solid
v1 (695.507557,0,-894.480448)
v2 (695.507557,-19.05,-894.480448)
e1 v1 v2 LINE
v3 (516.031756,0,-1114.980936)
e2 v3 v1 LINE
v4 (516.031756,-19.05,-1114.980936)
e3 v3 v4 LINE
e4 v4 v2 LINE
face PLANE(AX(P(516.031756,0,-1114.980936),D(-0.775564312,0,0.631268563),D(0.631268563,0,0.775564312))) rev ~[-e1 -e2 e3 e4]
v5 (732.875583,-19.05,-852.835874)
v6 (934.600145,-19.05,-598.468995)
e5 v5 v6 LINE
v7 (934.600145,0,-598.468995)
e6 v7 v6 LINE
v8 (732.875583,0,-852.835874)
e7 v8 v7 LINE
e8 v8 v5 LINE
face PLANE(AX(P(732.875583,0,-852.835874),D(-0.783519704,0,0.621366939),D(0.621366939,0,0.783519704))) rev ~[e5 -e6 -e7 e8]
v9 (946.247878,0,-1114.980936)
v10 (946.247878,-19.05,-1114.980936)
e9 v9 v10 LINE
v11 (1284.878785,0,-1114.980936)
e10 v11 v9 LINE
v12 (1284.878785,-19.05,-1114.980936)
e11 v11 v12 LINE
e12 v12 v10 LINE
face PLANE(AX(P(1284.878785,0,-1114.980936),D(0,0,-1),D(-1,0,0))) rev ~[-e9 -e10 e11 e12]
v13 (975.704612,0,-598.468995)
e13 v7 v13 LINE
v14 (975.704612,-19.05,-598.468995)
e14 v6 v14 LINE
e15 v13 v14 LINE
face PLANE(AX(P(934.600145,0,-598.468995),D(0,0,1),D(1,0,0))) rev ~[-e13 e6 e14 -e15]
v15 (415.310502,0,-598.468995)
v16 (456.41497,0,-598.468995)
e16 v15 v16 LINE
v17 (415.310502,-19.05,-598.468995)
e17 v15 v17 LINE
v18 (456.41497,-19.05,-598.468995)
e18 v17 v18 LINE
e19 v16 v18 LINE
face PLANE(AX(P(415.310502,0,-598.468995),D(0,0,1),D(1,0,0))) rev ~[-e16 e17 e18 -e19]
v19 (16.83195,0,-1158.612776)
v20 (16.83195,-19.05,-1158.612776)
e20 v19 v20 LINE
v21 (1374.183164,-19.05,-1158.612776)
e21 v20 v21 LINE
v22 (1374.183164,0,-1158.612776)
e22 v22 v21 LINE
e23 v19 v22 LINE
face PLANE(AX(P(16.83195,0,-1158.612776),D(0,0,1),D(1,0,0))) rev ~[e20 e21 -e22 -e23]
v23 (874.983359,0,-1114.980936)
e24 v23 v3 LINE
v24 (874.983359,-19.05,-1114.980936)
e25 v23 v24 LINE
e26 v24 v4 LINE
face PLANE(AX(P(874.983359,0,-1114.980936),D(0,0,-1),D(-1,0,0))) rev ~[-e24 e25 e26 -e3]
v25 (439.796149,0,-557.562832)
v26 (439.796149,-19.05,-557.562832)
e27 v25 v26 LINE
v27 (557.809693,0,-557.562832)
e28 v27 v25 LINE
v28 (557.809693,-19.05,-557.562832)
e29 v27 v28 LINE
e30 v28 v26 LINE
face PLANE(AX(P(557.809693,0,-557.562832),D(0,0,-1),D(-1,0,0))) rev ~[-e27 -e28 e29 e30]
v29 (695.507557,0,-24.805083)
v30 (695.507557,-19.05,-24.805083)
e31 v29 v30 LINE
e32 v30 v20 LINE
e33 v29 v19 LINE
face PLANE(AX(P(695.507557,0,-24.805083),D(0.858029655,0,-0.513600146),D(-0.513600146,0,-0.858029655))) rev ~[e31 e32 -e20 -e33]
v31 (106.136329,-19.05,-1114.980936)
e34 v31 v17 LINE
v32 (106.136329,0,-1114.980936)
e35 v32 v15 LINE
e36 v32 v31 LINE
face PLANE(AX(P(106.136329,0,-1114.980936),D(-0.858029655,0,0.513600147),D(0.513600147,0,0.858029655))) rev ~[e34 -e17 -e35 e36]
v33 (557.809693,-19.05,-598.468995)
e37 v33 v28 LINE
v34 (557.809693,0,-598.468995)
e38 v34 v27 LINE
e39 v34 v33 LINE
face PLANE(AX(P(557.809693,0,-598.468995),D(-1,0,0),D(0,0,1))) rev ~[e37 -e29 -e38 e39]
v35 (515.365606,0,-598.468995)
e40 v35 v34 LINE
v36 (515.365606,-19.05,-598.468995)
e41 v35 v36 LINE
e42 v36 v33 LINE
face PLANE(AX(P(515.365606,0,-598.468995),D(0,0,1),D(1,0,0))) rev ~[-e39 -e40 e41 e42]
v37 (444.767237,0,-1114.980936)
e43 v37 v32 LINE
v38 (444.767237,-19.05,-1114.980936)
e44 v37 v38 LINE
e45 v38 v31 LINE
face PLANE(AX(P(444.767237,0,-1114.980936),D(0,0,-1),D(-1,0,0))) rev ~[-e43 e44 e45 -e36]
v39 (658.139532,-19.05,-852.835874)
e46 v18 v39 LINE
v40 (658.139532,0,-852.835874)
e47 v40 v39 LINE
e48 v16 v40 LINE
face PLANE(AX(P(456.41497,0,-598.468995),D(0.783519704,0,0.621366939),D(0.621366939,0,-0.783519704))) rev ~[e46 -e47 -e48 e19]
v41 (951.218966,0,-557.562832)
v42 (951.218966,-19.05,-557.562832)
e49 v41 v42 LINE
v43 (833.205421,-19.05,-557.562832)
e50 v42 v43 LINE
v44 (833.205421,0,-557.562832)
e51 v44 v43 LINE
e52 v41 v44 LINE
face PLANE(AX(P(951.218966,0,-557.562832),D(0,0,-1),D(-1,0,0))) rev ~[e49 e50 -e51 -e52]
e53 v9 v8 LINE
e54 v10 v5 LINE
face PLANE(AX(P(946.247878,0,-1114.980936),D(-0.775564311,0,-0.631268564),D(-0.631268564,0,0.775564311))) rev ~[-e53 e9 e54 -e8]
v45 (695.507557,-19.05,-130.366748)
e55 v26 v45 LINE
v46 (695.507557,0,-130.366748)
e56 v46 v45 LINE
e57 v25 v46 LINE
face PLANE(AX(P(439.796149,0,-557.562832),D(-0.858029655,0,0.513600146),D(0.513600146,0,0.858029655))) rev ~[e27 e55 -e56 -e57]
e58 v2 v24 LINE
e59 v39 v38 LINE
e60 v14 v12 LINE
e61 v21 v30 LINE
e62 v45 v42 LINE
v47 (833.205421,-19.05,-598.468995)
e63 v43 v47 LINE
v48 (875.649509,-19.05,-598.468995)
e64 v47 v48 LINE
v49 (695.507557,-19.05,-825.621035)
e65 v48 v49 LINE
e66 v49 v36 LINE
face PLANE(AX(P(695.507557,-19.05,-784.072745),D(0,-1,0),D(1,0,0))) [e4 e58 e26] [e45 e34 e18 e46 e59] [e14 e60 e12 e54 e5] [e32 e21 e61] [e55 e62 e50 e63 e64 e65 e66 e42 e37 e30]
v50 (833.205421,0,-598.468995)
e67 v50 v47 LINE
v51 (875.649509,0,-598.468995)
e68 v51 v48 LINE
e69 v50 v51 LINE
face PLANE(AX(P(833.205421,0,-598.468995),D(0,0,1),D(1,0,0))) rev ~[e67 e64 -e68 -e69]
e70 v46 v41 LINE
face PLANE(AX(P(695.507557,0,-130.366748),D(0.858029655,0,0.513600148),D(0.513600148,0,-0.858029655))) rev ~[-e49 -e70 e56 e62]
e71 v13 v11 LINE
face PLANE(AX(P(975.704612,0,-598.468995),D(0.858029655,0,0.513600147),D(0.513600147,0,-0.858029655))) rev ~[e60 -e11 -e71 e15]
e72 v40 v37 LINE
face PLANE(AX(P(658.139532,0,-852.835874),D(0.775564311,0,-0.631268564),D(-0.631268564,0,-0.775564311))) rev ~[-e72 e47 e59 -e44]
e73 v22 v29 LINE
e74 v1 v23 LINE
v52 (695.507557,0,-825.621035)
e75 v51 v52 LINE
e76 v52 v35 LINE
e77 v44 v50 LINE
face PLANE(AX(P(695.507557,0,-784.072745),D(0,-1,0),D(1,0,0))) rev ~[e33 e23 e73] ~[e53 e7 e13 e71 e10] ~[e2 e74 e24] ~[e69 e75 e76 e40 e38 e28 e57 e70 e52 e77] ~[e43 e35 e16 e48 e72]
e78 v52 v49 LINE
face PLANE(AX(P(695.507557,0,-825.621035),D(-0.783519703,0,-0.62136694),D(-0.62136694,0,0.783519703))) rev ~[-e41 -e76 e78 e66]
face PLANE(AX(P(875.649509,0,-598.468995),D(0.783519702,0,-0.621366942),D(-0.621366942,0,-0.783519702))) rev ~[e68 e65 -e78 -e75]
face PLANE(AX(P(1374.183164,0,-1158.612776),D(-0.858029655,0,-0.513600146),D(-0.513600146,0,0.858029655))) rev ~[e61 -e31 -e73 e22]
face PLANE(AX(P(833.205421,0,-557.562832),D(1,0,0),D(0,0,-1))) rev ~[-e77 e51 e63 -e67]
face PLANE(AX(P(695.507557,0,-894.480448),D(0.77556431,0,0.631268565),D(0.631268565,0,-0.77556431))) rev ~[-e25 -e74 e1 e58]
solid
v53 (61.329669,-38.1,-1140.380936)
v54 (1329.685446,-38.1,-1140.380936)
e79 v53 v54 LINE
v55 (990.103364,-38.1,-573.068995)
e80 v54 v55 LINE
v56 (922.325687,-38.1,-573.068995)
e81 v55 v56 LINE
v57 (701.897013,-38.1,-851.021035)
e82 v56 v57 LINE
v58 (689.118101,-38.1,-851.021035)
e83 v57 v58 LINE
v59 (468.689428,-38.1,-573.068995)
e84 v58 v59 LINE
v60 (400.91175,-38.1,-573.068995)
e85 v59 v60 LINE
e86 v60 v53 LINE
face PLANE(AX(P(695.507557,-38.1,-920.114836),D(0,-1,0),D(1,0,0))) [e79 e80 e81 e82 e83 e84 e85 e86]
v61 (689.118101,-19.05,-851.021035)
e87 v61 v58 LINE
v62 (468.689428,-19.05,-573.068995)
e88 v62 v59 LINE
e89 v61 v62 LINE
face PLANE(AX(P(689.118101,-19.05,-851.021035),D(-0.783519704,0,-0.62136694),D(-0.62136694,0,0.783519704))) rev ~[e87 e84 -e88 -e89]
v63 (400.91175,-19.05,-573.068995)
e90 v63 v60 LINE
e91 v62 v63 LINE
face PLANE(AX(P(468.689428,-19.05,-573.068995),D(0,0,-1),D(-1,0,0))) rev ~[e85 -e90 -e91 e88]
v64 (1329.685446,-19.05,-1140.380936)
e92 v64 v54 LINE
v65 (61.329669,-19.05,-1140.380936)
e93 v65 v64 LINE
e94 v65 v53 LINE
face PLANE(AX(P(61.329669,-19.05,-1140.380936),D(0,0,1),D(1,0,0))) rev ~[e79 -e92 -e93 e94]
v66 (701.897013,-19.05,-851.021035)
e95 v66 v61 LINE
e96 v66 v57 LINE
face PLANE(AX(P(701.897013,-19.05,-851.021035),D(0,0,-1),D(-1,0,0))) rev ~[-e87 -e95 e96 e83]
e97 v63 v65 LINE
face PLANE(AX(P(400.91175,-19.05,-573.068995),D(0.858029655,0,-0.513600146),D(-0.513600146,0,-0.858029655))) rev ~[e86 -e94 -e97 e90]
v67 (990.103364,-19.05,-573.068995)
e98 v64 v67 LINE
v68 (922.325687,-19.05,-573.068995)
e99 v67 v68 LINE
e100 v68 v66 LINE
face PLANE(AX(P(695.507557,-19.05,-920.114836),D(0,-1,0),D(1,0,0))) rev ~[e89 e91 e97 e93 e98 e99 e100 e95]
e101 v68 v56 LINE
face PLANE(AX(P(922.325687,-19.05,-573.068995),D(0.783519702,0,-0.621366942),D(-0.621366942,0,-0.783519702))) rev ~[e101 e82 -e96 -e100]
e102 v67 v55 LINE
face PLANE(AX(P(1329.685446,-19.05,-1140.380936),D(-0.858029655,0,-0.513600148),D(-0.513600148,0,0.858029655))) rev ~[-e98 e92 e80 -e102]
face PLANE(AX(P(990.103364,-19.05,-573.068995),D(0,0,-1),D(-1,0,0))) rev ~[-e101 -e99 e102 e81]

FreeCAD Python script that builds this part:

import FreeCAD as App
import Part
import Sketcher
from FreeCAD import Vector
Q = App.Units.Quantity

doc = App.newDocument("Part")
body = doc.addObject("PartDesign::Body", "Body")

# Sketch on XZ plane
sketch1 = body.newObject("Sketcher::SketchObject", "Sketch")
sketch1.AttachmentSupport = (doc.getObject("XZ_Plane"), [""])
sketch1.MapMode = "FlatFace"
sketch1.addGeometry([
    Part.LineSegment(Vector(1374, -1159, 0), Vector(696, -25, 0)),  # 0
    Part.LineSegment(Vector(696, -25, 0), Vector(17, -1159, 0)),  # 1
    Part.LineSegment(Vector(17, -1159, 0), Vector(1374, -1159, 0)),  # 2
    Part.LineSegment(Vector(415, -598, 0), Vector(456, -598, 0)),  # 3
    Part.LineSegment(Vector(456, -598, 0), Vector(658, -853, 0)),  # 4
    Part.LineSegment(Vector(658, -853, 0), Vector(445, -1115, 0)),  # 5
    Part.LineSegment(Vector(445, -1115, 0), Vector(106, -1115, 0)),  # 6
    Part.LineSegment(Vector(106, -1115, 0), Vector(415, -598, 0)),  # 7
    Part.LineSegment(Vector(875, -1115, 0), Vector(516, -1115, 0)),  # 8
    Part.LineSegment(Vector(516, -1115, 0), Vector(696, -894, 0)),  # 9
    Part.LineSegment(Vector(696, -894, 0), Vector(875, -1115, 0)),  # 10
    Part.LineSegment(Vector(1285, -1115, 0), Vector(946, -1115, 0)),  # 11
    Part.LineSegment(Vector(946, -1115, 0), Vector(733, -853, 0)),  # 12
    Part.LineSegment(Vector(733, -853, 0), Vector(935, -598, 0)),  # 13
    Part.LineSegment(Vector(935, -598, 0), Vector(976, -598, 0)),  # 14
    Part.LineSegment(Vector(976, -598, 0), Vector(1285, -1115, 0)),  # 15
    Part.LineSegment(Vector(833, -598, 0), Vector(876, -598, 0)),  # 16
    Part.LineSegment(Vector(876, -598, 0), Vector(696, -826, 0)),  # 17
    Part.LineSegment(Vector(696, -826, 0), Vector(515, -598, 0)),  # 18
    Part.LineSegment(Vector(515, -598, 0), Vector(558, -598, 0)),  # 19
    Part.LineSegment(Vector(558, -598, 0), Vector(558, -558, 0)),  # 20
    Part.LineSegment(Vector(558, -558, 0), Vector(440, -558, 0)),  # 21
    Part.LineSegment(Vector(440, -558, 0), Vector(696, -130, 0)),  # 22
    Part.LineSegment(Vector(696, -130, 0), Vector(951, -558, 0)),  # 23
    Part.LineSegment(Vector(951, -558, 0), Vector(833, -558, 0)),  # 24
    Part.LineSegment(Vector(833, -558, 0), Vector(833, -598, 0)),  # 25
], False)
sketch1.addConstraint([
    Sketcher.Constraint("Coincident", 0, 2, 1, 1),
    Sketcher.Constraint("Coincident", 1, 2, 2, 1),
    Sketcher.Constraint("Coincident", 2, 2, 0, 1),
    Sketcher.Constraint("Coincident", 3, 2, 4, 1),
    Sketcher.Constraint("Coincident", 4, 2, 5, 1),
    Sketcher.Constraint("Coincident", 5, 2, 6, 1),
    Sketcher.Constraint("Coincident", 6, 2, 7, 1),
    Sketcher.Constraint("Coincident", 7, 2, 3, 1),
    Sketcher.Constraint("Coincident", 8, 2, 9, 1),
    Sketcher.Constraint("Coincident", 9, 2, 10, 1),
    Sketcher.Constraint("Coincident", 10, 2, 8, 1),
    Sketcher.Constraint("Coincident", 11, 2, 12, 1),
    Sketcher.Constraint("Coincident", 12, 2, 13, 1),
    Sketcher.Constraint("Coincident", 13, 2, 14, 1),
    Sketcher.Constraint("Coincident", 14, 2, 15, 1),
    Sketcher.Constraint("Coincident", 15, 2, 11, 1),
    Sketcher.Constraint("Coincident", 16, 2, 17, 1),
    Sketcher.Constraint("Coincident", 17, 2, 18, 1),
    Sketcher.Constraint("Coincident", 18, 2, 19, 1),
    Sketcher.Constraint("Coincident", 19, 2, 20, 1),
    Sketcher.Constraint("Coincident", 20, 2, 21, 1),
    Sketcher.Constraint("Coincident", 21, 2, 22, 1),
    Sketcher.Constraint("Coincident", 22, 2, 23, 1),
    Sketcher.Constraint("Coincident", 23, 2, 24, 1),
    Sketcher.Constraint("Coincident", 24, 2, 25, 1),
    Sketcher.Constraint("Coincident", 25, 2, 16, 1),
    Sketcher.Constraint("Horizontal", 2),
    Sketcher.Constraint("Horizontal", 3),
    Sketcher.Constraint("Horizontal", 6),
    Sketcher.Constraint("Horizontal", 8),
    Sketcher.Constraint("Horizontal", 11),
    Sketcher.Constraint("Horizontal", 14),
    Sketcher.Constraint("Horizontal", 16),
    Sketcher.Constraint("Horizontal", 19),
    Sketcher.Constraint("Vertical", 20),
    Sketcher.Constraint("Horizontal", 21),
    Sketcher.Constraint("Horizontal", 24),
    Sketcher.Constraint("Vertical", 25),
    Sketcher.Constraint("Parallel", 1, 7),
    Sketcher.Constraint("Parallel", 5, 9),
    Sketcher.Constraint("Parallel", 10, 12),
    Sketcher.Constraint("Parallel", 0, 15),
    Sketcher.Constraint("Parallel", 13, 17),
    Sketcher.Constraint("Parallel", 4, 18),
    Sketcher.Constraint("Parallel", 7, 22),
    Sketcher.Constraint("Parallel", 15, 23),
    Sketcher.Constraint("Horizontal", 6, 2, 8, 2),
    Sketcher.Constraint("Horizontal", 10, 2, 11, 2),
    Sketcher.Constraint("Horizontal", 4, 2, 12, 2),
    Sketcher.Constraint("Horizontal", 7, 2, 13, 2),
    Sketcher.Constraint("Horizontal", 14, 2, 16, 2),
    Sketcher.Constraint("Horizontal", 16, 2, 18, 2),
    Sketcher.Constraint("Horizontal", 21, 2, 23, 2),
    Sketcher.Constraint("Vertical", 0, 2, 9, 2),
    Sketcher.Constraint("Vertical", 9, 2, 17, 2),
    Sketcher.Constraint("Vertical", 17, 2, 22, 2),
    Sketcher.Constraint("Equal", 6, 11),
    Sketcher.Constraint("Equal", 3, 14),
    Sketcher.Constraint("Equal", 16, 19),
    Sketcher.Constraint("Equal", 21, 24),
    Sketcher.Constraint("Equal", 0, 1),
    Sketcher.Constraint("DistanceX", 6, 2, 6, 1, 338.630908),
    Sketcher.Constraint("DistanceX", -1, 1, 7, 2, 415.310502),
    Sketcher.Constraint("DistanceY", 1, 2, 4, 2, 305.776902),
    Sketcher.Constraint("DistanceX", 8, 2, 9, 2, 179.475801),
    Sketcher.Constraint("Distance", 9, 284.30974),
    Sketcher.Constraint("Distance", 18, 289.912352),
    Sketcher.Constraint("DistanceX", 2, 1, 2, 2, 1357.351214),
    Sketcher.Constraint("DistanceX", 3, 1, 3, 2, 41.104468),
    Sketcher.Constraint("DistanceX", 16, 1, 16, 2, 42.444088),
    Sketcher.Constraint("DistanceX", 21, 2, 21, 1, 118.013544),
    Sketcher.Constraint("DistanceY", 20, 1, 20, 2, 40.906163),
    Sketcher.Constraint("DistanceX", -1, 1, 1, 2, 16.83195),
    Sketcher.Constraint("DistanceX", -1, 1, 4, 2, 658.139532),
    Sketcher.Constraint("DistanceX", -1, 1, 6, 2, 106.136329),
    Sketcher.Constraint("DistanceY", 9, 2, -1, 1, 894.480448),
    Sketcher.Constraint("DistanceX", -1, 1, 11, 2, 946.247878),
    Sketcher.Constraint("DistanceX", -1, 1, 16, 2, 875.649509),
])
pad1 = body.newObject("PartDesign::Pad", "Pad")
pad1.Profile = sketch1
pad1.Length = Q("0.75 in")
body2 = doc.addObject("PartDesign::Body", "Body001")

# Sketch on XZ plane
sketch2 = body2.newObject("Sketcher::SketchObject", "Sketch001")
sketch2.AttachmentSupport = (doc.getObject("XZ_Plane001"), [""])
sketch2.MapMode = "FlatFace"
sketch2.AttachmentOffset = App.Placement(Vector(0, 0, 0.75 * 25.4), App.Rotation())
sketch2.addGeometry([
    Part.LineSegment(Vector(689, -851, 0), Vector(469, -573, 0)),  # 0
    Part.LineSegment(Vector(469, -573, 0), Vector(401, -573, 0)),  # 1
    Part.LineSegment(Vector(401, -573, 0), Vector(61, -1140, 0)),  # 2
    Part.LineSegment(Vector(61, -1140, 0), Vector(1330, -1140, 0)),  # 3
    Part.LineSegment(Vector(1330, -1140, 0), Vector(990, -573, 0)),  # 4
    Part.LineSegment(Vector(990, -573, 0), Vector(922, -573, 0)),  # 5
    Part.LineSegment(Vector(922, -573, 0), Vector(702, -851, 0)),  # 6
    Part.LineSegment(Vector(702, -851, 0), Vector(689, -851, 0)),  # 7
], False)
sketch2.addConstraint([
    Sketcher.Constraint("Coincident", 0, 2, 1, 1),
    Sketcher.Constraint("Coincident", 1, 2, 2, 1),
    Sketcher.Constraint("Coincident", 2, 2, 3, 1),
    Sketcher.Constraint("Coincident", 3, 2, 4, 1),
    Sketcher.Constraint("Coincident", 4, 2, 5, 1),
    Sketcher.Constraint("Coincident", 5, 2, 6, 1),
    Sketcher.Constraint("Coincident", 6, 2, 7, 1),
    Sketcher.Constraint("Coincident", 7, 2, 0, 1),
    Sketcher.Constraint("Horizontal", 1),
    Sketcher.Constraint("Horizontal", 3),
    Sketcher.Constraint("Horizontal", 5),
    Sketcher.Constraint("Horizontal", 7),
    Sketcher.Constraint("Horizontal", 1, 2, 4, 2),
    Sketcher.Constraint("Equal", 1, 5),
    Sketcher.Constraint("Equal", 2, 4),
    Sketcher.Constraint("Equal", 0, 6),
    Sketcher.Constraint("DistanceX", 1, 2, 1, 1, 67.777678),
    Sketcher.Constraint("DistanceX", 7, 2, 7, 1, 12.778912),
    Sketcher.Constraint("DistanceX", -1, 1, 7, 2, 689.118101),
    Sketcher.Constraint("DistanceY", 3, 2, 6, 2, 289.359901),
    Sketcher.Constraint("Distance", 0, 354.74799),
    Sketcher.Constraint("DistanceX", 3, 1, 3, 2, 1268.355777),
    Sketcher.Constraint("DistanceX", -1, 1, 0, 2, 468.689428),
    Sketcher.Constraint("DistanceY", 0, 2, -1, 1, 573.068995),
])
pad2 = body2.newObject("PartDesign::Pad", "Pad001")
pad2.Profile = sketch2
pad2.Length = Q("0.75 in")

doc.recompute()
